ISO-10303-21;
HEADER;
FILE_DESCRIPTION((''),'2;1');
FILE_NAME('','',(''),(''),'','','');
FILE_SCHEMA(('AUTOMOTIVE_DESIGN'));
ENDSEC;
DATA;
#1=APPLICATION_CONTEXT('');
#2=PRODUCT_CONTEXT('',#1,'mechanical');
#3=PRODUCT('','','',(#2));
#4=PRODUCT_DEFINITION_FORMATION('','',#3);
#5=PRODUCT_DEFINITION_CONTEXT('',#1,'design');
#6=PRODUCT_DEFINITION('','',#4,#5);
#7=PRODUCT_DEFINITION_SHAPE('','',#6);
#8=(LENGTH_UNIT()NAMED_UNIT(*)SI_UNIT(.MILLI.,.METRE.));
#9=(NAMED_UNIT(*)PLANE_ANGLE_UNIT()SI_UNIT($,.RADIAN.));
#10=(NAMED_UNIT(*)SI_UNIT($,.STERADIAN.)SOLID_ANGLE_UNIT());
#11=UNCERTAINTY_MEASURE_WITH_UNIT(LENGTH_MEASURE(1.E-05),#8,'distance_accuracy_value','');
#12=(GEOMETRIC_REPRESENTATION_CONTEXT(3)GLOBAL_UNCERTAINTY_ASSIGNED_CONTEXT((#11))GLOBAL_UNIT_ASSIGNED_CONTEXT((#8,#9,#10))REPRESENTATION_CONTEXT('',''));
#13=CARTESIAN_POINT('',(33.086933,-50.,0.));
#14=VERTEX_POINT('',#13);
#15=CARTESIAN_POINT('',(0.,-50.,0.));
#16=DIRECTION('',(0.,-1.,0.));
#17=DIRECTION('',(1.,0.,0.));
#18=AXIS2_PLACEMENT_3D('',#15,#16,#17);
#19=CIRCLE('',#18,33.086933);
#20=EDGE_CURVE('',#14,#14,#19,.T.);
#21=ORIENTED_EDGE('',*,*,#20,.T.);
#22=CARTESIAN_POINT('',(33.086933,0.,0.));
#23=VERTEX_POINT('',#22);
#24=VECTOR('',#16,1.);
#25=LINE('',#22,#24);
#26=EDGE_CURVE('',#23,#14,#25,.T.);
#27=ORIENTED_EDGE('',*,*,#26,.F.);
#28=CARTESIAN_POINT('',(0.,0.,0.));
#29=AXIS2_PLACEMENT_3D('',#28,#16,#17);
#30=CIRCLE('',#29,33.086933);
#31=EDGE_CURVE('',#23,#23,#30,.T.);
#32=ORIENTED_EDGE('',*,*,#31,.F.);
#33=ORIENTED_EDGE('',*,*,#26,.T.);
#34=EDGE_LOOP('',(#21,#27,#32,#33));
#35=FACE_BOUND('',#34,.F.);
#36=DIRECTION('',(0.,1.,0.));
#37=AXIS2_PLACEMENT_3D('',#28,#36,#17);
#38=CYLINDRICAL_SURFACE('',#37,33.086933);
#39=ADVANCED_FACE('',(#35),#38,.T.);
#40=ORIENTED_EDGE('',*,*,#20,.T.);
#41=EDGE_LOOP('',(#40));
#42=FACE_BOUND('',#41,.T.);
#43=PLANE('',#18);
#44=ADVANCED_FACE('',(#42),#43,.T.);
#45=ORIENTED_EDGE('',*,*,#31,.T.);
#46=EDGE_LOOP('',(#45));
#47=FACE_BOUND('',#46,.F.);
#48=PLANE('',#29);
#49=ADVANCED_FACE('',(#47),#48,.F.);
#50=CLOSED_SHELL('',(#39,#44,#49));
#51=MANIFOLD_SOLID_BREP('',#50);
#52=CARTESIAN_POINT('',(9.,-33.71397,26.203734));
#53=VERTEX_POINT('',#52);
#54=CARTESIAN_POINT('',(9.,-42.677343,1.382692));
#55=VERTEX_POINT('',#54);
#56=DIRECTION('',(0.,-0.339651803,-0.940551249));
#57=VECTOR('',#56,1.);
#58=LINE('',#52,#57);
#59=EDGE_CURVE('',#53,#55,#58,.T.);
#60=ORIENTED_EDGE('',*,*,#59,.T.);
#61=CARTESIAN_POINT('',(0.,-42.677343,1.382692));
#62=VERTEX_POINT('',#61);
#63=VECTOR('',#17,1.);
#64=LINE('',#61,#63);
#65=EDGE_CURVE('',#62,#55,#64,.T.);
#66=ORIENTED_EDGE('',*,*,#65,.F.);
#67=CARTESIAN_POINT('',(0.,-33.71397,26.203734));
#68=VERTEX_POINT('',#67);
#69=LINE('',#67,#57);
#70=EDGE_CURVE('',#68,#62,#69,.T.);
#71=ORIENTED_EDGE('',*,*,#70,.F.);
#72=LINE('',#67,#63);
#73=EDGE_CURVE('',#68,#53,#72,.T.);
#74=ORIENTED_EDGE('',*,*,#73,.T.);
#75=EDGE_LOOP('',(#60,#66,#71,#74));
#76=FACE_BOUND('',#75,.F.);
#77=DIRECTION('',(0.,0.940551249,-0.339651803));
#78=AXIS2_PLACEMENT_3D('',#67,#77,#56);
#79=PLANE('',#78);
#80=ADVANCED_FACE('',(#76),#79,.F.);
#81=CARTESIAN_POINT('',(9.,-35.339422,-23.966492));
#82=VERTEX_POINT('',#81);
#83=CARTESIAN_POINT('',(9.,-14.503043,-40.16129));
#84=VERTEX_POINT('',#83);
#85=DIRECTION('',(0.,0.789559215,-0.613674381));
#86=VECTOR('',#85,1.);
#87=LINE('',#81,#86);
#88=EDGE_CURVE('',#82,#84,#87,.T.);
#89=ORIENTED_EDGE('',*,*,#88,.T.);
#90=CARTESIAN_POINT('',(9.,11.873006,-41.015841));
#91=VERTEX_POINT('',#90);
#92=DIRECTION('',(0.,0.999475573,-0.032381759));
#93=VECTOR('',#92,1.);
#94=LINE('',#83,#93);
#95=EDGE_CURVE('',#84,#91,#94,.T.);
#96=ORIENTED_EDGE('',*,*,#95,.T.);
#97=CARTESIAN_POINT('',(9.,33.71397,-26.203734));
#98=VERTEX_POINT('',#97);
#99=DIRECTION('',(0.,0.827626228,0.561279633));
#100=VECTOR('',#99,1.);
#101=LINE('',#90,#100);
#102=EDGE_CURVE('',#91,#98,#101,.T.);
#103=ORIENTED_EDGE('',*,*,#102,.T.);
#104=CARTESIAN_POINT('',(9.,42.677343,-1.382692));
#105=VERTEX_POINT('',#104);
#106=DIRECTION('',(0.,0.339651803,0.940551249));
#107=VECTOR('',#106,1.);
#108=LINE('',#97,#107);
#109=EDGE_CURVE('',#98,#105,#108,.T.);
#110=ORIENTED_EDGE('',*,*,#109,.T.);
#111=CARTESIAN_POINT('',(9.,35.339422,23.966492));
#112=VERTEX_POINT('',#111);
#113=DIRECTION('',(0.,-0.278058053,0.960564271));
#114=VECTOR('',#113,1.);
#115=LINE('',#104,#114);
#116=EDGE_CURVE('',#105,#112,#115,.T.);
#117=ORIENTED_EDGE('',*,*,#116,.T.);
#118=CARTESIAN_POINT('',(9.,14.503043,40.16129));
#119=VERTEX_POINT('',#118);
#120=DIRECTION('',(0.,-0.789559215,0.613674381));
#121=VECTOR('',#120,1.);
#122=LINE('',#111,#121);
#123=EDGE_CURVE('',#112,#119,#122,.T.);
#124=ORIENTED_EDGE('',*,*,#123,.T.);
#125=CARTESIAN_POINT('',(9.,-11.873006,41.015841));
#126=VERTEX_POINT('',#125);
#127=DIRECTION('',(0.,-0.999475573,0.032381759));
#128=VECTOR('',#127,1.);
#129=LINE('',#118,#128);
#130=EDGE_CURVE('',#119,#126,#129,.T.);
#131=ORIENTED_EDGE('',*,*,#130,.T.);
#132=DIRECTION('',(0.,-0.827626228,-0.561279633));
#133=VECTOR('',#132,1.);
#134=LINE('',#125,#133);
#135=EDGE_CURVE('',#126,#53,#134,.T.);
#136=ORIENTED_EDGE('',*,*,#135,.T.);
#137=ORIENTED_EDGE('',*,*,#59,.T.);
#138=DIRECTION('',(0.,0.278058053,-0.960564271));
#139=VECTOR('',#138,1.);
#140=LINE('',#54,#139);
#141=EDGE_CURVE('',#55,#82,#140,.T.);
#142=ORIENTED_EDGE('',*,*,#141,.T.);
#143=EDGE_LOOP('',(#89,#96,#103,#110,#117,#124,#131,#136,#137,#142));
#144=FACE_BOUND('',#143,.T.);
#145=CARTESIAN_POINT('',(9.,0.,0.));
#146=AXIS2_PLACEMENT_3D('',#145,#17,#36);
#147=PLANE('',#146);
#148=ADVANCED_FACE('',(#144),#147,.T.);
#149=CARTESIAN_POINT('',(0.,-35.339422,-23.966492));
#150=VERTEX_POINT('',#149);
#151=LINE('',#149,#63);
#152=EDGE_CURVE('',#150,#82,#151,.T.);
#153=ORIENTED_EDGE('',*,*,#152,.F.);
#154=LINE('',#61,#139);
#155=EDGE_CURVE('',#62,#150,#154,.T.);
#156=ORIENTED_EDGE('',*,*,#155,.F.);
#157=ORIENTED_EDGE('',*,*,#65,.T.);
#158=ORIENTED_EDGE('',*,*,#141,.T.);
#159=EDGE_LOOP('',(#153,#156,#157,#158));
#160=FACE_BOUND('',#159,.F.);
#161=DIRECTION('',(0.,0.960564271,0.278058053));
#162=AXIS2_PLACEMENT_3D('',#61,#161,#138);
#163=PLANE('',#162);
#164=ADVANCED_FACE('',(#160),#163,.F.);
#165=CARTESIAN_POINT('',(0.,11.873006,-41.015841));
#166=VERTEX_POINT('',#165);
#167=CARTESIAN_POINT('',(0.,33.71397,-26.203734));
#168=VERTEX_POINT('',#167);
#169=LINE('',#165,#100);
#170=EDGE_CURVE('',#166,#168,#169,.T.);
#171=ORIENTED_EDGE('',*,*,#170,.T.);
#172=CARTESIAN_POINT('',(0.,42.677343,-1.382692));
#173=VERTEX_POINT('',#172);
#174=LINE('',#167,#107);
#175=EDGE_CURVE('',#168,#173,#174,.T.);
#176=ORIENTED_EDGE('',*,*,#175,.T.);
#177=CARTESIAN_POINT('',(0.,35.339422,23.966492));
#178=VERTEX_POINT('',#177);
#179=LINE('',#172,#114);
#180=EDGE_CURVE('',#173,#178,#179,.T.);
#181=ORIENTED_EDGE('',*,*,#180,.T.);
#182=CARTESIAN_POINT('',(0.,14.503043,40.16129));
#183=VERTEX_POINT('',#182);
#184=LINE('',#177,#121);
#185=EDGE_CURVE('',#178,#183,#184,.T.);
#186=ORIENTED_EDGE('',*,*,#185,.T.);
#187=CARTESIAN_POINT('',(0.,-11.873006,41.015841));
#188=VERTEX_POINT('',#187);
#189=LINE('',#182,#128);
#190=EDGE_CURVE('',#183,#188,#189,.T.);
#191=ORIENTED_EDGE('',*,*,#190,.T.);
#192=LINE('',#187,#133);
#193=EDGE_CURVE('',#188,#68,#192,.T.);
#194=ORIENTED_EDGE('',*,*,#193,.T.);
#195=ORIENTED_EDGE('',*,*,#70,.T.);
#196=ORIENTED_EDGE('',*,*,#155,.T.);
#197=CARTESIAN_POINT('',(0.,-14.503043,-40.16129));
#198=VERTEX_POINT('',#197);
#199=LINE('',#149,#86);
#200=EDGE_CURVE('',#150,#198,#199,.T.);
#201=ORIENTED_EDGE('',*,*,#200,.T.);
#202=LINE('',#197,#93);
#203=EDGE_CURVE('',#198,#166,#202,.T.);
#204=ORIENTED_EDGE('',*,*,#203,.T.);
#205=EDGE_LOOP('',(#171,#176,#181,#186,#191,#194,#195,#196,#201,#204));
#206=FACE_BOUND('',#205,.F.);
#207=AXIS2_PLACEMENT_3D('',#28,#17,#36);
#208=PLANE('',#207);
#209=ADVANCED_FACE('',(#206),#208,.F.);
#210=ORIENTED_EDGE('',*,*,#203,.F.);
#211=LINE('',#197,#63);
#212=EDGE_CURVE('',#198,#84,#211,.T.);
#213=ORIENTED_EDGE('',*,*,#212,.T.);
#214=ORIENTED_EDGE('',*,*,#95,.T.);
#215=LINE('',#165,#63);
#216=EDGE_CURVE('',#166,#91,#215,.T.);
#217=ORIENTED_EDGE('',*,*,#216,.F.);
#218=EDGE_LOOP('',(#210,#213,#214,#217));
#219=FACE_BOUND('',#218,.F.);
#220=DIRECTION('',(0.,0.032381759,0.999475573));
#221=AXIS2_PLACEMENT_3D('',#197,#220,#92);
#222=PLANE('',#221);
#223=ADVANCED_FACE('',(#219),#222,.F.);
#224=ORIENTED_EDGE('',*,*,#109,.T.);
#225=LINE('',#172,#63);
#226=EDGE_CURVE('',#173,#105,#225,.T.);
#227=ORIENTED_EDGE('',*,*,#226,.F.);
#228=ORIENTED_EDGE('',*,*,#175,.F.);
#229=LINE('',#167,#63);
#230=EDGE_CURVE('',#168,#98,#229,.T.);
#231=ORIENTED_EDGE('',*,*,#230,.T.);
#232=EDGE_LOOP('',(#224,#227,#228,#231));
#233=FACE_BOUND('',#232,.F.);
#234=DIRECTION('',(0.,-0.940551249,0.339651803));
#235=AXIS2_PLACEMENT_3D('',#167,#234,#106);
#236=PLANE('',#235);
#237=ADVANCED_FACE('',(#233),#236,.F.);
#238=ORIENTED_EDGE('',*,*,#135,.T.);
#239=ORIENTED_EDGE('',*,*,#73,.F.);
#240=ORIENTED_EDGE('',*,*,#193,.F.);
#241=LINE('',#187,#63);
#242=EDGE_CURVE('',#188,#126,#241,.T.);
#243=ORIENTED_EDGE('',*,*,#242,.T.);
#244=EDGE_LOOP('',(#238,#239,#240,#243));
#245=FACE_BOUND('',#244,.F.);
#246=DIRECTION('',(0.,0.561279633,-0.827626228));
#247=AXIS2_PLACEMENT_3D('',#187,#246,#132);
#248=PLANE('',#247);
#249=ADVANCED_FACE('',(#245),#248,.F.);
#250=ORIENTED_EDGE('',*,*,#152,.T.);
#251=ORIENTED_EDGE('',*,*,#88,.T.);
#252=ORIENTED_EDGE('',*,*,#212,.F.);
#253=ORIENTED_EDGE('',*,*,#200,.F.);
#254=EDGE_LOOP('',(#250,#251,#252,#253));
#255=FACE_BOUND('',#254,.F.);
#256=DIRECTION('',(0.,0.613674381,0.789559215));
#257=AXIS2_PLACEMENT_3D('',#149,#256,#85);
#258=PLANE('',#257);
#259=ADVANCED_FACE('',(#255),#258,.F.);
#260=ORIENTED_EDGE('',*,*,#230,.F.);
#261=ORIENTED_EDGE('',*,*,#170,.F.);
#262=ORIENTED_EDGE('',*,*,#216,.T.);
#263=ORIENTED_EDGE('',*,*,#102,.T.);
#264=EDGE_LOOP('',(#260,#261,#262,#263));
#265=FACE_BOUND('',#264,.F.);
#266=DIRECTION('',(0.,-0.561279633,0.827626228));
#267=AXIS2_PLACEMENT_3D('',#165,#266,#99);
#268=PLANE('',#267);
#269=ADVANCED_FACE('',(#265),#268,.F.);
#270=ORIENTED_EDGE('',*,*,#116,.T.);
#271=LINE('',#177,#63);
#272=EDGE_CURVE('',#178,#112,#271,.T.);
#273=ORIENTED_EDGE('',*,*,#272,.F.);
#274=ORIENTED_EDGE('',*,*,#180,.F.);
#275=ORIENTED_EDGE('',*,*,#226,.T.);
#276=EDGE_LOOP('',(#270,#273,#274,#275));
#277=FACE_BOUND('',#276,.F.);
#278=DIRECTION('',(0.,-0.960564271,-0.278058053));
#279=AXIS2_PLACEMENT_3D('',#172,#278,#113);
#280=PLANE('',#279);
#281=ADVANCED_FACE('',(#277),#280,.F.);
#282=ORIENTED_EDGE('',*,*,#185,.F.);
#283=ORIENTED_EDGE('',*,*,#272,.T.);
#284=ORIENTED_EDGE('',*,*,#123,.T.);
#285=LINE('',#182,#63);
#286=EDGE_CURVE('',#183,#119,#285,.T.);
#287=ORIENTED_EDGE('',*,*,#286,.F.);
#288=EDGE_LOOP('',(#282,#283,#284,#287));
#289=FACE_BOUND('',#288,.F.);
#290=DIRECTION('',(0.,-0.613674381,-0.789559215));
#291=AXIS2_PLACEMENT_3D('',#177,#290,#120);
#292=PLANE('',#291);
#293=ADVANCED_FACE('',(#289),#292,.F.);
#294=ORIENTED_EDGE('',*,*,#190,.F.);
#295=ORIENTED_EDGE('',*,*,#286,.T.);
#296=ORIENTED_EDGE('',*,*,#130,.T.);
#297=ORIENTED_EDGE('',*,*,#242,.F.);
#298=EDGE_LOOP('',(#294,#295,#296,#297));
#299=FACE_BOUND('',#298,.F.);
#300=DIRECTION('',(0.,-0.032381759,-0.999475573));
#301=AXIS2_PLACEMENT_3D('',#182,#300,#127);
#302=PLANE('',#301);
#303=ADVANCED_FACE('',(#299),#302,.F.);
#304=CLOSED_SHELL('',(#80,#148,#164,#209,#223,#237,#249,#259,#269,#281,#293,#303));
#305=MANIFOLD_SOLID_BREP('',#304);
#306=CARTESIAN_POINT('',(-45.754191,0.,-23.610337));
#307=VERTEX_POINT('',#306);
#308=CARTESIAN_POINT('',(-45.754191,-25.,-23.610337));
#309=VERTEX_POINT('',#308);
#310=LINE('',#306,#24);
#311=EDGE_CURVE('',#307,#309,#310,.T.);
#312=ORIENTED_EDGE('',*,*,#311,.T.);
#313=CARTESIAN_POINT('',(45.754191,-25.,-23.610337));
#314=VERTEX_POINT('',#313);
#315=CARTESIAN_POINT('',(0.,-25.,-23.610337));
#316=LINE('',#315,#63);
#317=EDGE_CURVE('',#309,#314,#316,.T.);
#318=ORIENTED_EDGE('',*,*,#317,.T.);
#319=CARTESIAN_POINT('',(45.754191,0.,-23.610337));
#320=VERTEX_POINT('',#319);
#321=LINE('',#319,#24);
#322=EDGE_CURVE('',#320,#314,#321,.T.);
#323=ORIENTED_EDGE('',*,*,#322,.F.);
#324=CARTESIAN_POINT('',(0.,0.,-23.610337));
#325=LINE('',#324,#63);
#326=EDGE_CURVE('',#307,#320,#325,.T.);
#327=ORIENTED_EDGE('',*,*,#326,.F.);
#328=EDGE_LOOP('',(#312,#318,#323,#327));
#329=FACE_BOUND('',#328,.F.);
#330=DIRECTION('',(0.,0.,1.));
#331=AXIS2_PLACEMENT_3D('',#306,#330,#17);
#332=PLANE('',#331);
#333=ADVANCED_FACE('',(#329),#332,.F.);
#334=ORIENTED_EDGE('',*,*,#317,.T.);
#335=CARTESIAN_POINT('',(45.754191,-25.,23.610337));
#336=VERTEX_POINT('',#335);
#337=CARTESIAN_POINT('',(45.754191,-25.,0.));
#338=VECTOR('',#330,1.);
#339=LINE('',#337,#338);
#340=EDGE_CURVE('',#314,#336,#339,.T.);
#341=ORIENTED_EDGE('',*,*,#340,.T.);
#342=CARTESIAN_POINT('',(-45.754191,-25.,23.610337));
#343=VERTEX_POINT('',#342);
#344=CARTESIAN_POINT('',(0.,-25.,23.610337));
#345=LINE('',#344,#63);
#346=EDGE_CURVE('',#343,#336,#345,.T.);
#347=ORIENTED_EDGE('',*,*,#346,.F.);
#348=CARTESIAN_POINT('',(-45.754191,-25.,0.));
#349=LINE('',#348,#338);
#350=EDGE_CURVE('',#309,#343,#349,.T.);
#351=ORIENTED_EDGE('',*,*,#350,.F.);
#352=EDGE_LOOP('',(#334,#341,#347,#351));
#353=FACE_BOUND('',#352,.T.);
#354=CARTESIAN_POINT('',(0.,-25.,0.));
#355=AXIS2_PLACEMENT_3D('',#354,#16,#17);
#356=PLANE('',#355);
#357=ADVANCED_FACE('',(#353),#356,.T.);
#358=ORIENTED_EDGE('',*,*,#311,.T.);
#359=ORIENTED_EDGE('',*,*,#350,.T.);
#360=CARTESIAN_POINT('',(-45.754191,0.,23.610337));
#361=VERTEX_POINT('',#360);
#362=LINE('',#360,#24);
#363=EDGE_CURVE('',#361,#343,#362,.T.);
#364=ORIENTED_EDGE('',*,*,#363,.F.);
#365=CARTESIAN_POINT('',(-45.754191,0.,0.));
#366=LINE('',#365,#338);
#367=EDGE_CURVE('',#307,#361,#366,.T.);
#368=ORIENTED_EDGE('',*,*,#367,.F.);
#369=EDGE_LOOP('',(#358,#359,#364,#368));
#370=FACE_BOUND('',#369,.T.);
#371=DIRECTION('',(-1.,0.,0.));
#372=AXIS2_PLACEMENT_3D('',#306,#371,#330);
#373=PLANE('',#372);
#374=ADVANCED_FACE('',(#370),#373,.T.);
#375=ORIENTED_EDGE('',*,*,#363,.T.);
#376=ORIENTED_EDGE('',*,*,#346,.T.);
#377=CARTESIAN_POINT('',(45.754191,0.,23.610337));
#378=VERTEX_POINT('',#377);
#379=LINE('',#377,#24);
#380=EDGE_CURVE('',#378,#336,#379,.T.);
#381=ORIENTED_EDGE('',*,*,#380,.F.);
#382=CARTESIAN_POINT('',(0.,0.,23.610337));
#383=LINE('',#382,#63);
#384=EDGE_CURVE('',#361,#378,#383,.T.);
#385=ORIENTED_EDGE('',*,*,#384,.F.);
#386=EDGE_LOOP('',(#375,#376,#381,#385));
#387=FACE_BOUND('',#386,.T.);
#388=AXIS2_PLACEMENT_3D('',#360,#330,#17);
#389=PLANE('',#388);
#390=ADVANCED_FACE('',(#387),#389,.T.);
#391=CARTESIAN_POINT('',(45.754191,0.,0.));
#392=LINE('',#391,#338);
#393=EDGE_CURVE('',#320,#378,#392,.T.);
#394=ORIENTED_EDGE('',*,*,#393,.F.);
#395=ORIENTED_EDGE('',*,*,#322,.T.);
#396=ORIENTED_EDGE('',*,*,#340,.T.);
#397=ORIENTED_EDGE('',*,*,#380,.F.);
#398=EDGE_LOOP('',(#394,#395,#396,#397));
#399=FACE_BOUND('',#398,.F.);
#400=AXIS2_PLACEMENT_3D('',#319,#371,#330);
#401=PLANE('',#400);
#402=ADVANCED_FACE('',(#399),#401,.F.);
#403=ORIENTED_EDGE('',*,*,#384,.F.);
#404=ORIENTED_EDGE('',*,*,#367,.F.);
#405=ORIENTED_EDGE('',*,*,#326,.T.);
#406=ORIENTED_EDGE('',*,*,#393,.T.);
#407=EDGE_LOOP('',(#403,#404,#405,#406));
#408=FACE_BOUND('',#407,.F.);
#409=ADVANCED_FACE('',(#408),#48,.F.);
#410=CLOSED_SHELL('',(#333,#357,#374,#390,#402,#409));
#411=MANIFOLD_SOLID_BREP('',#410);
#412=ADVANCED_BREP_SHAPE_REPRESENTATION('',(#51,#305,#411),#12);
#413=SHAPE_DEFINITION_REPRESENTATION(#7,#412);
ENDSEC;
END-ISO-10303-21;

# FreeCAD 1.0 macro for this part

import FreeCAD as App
import Part
import Sketcher

V = App.Vector

doc = App.newDocument("Part")
body = doc.addObject("PartDesign::Body", "Body")

sketch1 = body.newObject("Sketcher::SketchObject", "Sketch")
sketch1.AttachmentSupport = (doc.getObject("XZ_Plane"), [""])
sketch1.MapMode = "FlatFace"
sketch1.addGeometry([
    Part.LineSegment(V(-46, 24, 0), V(-46, -24, 0)),
    Part.LineSegment(V(-46, -24, 0), V(46, -24, 0)),
    Part.LineSegment(V(46, -24, 0), V(46, 24, 0)),
    Part.LineSegment(V(46, 24, 0), V(-46, 24, 0)),
], False)
sketch1.addConstraint([
    Sketcher.Constraint("Coincident", 0, 2, 1, 1),
    Sketcher.Constraint("Coincident", 1, 2, 2, 1),
    Sketcher.Constraint("Coincident", 2, 2, 3, 1),
    Sketcher.Constraint("Coincident", 3, 2, 0, 1),
    Sketcher.Constraint("Vertical", 0),
    Sketcher.Constraint("Horizontal", 1),
    Sketcher.Constraint("Vertical", 2),
    Sketcher.Constraint("Horizontal", 3),
    Sketcher.Constraint("Symmetric", 0, 2, 2, 2, -1, 1),
    Sketcher.Constraint("DistanceX", 1, 1, 1, 2, 91.508382),
    Sketcher.Constraint("DistanceY", 0, 2, 0, 1, 47.220674),
])
pad1 = body.newObject("PartDesign::Pad", "Pad")
pad1.Profile = sketch1
pad1.Length = 25
body2 = doc.addObject("PartDesign::Body", "Body001")

sketch2 = body2.newObject("Sketcher::SketchObject", "Sketch001")
sketch2.AttachmentSupport = (doc.getObject("XZ_Plane001"), [""])
sketch2.MapMode = "FlatFace"
sketch2.addGeometry(Part.Circle(V(0, 0, 0), V(0, 0, 1), 33), False)
sketch2.addConstraint([
    Sketcher.Constraint("Coincident", 0, 3, -1, 1),
    Sketcher.Constraint("Diameter", 0, 66.173866),
])
pad2 = body2.newObject("PartDesign::Pad", "Pad001")
pad2.Profile = sketch2
pad2.Length = 50
body3 = doc.addObject("PartDesign::Body", "Body002")

sketch3 = body3.newObject("Sketcher::SketchObject", "Sketch002")
sketch3.AttachmentSupport = (doc.getObject("YZ_Plane002"), [""])
sketch3.MapMode = "FlatFace"
sketch3.addGeometry([
    Part.LineSegment(V(43, -1, 0), V(35, 24, 0)),
    Part.LineSegment(V(35, 24, 0), V(15, 40, 0)),
    Part.LineSegment(V(15, 40, 0), V(-12, 41, 0)),
    Part.LineSegment(V(-12, 41, 0), V(-34, 26, 0)),
    Part.LineSegment(V(-34, 26, 0), V(-43, 1, 0)),
    Part.LineSegment(V(-43, 1, 0), V(-35, -24, 0)),
    Part.LineSegment(V(-35, -24, 0), V(-15, -40, 0)),
    Part.LineSegment(V(-15, -40, 0), V(12, -41, 0)),
    Part.LineSegment(V(12, -41, 0), V(34, -26, 0)),
    Part.LineSegment(V(34, -26, 0), V(43, -1, 0)),
], False)
sketch3.addConstraint([
    Sketcher.Constraint("Coincident", 0, 2, 1, 1),
    Sketcher.Constraint("Coincident", 1, 2, 2, 1),
    Sketcher.Constraint("Coincident", 2, 2, 3, 1),
    Sketcher.Constraint("Coincident", 3, 2, 4, 1),
    Sketcher.Constraint("Coincident", 4, 2, 5, 1),
    Sketcher.Constraint("Coincident", 5, 2, 6, 1),
    Sketcher.Constraint("Coincident", 6, 2, 7, 1),
    Sketcher.Constraint("Coincident", 7, 2, 8, 1),
    Sketcher.Constraint("Coincident", 8, 2, 9, 1),
    Sketcher.Constraint("Coincident", 9, 2, 0, 1),
    Sketcher.Constraint("Symmetric", 0, 2, 5, 2, -1, 1),
    Sketcher.Constraint("Symmetric", 1, 2, 6, 2, -1, 1),
    Sketcher.Constraint("Symmetric", 2, 2, 7, 2, -1, 1),
    Sketcher.Constraint("Symmetric", 3, 2, 8, 2, -1, 1),
    Sketcher.Constraint("Symmetric", 4, 2, 9, 2, -1, 1),
    Sketcher.Constraint("Equal", 0, 1),
    Sketcher.Constraint("Equal", 1, 2),
    Sketcher.Constraint("Equal", 2, 3),
    Sketcher.Constraint("Equal", 3, 4),
    Sketcher.Constraint("DistanceY", 0, 2, 1, 2, 16.194798),
    Sketcher.Constraint("DistanceY", 4, 2, 1, 2, 38.778598),
    Sketcher.Constraint("DistanceX", 4, 2, 6, 2, 28.1743),
    Sketcher.Constraint("Distance", 0, 26.389888),
    Sketcher.Constraint("DistanceY", -1, 1, 2, 2, 41.015841),
    Sketcher.Constraint("DistanceX", 3, 2, -1, 1, 33.71397),
])
pad3 = body3.newObject("PartDesign::Pad", "Pad002")
pad3.Profile = sketch3
pad3.Length = 9

doc.recompute()
